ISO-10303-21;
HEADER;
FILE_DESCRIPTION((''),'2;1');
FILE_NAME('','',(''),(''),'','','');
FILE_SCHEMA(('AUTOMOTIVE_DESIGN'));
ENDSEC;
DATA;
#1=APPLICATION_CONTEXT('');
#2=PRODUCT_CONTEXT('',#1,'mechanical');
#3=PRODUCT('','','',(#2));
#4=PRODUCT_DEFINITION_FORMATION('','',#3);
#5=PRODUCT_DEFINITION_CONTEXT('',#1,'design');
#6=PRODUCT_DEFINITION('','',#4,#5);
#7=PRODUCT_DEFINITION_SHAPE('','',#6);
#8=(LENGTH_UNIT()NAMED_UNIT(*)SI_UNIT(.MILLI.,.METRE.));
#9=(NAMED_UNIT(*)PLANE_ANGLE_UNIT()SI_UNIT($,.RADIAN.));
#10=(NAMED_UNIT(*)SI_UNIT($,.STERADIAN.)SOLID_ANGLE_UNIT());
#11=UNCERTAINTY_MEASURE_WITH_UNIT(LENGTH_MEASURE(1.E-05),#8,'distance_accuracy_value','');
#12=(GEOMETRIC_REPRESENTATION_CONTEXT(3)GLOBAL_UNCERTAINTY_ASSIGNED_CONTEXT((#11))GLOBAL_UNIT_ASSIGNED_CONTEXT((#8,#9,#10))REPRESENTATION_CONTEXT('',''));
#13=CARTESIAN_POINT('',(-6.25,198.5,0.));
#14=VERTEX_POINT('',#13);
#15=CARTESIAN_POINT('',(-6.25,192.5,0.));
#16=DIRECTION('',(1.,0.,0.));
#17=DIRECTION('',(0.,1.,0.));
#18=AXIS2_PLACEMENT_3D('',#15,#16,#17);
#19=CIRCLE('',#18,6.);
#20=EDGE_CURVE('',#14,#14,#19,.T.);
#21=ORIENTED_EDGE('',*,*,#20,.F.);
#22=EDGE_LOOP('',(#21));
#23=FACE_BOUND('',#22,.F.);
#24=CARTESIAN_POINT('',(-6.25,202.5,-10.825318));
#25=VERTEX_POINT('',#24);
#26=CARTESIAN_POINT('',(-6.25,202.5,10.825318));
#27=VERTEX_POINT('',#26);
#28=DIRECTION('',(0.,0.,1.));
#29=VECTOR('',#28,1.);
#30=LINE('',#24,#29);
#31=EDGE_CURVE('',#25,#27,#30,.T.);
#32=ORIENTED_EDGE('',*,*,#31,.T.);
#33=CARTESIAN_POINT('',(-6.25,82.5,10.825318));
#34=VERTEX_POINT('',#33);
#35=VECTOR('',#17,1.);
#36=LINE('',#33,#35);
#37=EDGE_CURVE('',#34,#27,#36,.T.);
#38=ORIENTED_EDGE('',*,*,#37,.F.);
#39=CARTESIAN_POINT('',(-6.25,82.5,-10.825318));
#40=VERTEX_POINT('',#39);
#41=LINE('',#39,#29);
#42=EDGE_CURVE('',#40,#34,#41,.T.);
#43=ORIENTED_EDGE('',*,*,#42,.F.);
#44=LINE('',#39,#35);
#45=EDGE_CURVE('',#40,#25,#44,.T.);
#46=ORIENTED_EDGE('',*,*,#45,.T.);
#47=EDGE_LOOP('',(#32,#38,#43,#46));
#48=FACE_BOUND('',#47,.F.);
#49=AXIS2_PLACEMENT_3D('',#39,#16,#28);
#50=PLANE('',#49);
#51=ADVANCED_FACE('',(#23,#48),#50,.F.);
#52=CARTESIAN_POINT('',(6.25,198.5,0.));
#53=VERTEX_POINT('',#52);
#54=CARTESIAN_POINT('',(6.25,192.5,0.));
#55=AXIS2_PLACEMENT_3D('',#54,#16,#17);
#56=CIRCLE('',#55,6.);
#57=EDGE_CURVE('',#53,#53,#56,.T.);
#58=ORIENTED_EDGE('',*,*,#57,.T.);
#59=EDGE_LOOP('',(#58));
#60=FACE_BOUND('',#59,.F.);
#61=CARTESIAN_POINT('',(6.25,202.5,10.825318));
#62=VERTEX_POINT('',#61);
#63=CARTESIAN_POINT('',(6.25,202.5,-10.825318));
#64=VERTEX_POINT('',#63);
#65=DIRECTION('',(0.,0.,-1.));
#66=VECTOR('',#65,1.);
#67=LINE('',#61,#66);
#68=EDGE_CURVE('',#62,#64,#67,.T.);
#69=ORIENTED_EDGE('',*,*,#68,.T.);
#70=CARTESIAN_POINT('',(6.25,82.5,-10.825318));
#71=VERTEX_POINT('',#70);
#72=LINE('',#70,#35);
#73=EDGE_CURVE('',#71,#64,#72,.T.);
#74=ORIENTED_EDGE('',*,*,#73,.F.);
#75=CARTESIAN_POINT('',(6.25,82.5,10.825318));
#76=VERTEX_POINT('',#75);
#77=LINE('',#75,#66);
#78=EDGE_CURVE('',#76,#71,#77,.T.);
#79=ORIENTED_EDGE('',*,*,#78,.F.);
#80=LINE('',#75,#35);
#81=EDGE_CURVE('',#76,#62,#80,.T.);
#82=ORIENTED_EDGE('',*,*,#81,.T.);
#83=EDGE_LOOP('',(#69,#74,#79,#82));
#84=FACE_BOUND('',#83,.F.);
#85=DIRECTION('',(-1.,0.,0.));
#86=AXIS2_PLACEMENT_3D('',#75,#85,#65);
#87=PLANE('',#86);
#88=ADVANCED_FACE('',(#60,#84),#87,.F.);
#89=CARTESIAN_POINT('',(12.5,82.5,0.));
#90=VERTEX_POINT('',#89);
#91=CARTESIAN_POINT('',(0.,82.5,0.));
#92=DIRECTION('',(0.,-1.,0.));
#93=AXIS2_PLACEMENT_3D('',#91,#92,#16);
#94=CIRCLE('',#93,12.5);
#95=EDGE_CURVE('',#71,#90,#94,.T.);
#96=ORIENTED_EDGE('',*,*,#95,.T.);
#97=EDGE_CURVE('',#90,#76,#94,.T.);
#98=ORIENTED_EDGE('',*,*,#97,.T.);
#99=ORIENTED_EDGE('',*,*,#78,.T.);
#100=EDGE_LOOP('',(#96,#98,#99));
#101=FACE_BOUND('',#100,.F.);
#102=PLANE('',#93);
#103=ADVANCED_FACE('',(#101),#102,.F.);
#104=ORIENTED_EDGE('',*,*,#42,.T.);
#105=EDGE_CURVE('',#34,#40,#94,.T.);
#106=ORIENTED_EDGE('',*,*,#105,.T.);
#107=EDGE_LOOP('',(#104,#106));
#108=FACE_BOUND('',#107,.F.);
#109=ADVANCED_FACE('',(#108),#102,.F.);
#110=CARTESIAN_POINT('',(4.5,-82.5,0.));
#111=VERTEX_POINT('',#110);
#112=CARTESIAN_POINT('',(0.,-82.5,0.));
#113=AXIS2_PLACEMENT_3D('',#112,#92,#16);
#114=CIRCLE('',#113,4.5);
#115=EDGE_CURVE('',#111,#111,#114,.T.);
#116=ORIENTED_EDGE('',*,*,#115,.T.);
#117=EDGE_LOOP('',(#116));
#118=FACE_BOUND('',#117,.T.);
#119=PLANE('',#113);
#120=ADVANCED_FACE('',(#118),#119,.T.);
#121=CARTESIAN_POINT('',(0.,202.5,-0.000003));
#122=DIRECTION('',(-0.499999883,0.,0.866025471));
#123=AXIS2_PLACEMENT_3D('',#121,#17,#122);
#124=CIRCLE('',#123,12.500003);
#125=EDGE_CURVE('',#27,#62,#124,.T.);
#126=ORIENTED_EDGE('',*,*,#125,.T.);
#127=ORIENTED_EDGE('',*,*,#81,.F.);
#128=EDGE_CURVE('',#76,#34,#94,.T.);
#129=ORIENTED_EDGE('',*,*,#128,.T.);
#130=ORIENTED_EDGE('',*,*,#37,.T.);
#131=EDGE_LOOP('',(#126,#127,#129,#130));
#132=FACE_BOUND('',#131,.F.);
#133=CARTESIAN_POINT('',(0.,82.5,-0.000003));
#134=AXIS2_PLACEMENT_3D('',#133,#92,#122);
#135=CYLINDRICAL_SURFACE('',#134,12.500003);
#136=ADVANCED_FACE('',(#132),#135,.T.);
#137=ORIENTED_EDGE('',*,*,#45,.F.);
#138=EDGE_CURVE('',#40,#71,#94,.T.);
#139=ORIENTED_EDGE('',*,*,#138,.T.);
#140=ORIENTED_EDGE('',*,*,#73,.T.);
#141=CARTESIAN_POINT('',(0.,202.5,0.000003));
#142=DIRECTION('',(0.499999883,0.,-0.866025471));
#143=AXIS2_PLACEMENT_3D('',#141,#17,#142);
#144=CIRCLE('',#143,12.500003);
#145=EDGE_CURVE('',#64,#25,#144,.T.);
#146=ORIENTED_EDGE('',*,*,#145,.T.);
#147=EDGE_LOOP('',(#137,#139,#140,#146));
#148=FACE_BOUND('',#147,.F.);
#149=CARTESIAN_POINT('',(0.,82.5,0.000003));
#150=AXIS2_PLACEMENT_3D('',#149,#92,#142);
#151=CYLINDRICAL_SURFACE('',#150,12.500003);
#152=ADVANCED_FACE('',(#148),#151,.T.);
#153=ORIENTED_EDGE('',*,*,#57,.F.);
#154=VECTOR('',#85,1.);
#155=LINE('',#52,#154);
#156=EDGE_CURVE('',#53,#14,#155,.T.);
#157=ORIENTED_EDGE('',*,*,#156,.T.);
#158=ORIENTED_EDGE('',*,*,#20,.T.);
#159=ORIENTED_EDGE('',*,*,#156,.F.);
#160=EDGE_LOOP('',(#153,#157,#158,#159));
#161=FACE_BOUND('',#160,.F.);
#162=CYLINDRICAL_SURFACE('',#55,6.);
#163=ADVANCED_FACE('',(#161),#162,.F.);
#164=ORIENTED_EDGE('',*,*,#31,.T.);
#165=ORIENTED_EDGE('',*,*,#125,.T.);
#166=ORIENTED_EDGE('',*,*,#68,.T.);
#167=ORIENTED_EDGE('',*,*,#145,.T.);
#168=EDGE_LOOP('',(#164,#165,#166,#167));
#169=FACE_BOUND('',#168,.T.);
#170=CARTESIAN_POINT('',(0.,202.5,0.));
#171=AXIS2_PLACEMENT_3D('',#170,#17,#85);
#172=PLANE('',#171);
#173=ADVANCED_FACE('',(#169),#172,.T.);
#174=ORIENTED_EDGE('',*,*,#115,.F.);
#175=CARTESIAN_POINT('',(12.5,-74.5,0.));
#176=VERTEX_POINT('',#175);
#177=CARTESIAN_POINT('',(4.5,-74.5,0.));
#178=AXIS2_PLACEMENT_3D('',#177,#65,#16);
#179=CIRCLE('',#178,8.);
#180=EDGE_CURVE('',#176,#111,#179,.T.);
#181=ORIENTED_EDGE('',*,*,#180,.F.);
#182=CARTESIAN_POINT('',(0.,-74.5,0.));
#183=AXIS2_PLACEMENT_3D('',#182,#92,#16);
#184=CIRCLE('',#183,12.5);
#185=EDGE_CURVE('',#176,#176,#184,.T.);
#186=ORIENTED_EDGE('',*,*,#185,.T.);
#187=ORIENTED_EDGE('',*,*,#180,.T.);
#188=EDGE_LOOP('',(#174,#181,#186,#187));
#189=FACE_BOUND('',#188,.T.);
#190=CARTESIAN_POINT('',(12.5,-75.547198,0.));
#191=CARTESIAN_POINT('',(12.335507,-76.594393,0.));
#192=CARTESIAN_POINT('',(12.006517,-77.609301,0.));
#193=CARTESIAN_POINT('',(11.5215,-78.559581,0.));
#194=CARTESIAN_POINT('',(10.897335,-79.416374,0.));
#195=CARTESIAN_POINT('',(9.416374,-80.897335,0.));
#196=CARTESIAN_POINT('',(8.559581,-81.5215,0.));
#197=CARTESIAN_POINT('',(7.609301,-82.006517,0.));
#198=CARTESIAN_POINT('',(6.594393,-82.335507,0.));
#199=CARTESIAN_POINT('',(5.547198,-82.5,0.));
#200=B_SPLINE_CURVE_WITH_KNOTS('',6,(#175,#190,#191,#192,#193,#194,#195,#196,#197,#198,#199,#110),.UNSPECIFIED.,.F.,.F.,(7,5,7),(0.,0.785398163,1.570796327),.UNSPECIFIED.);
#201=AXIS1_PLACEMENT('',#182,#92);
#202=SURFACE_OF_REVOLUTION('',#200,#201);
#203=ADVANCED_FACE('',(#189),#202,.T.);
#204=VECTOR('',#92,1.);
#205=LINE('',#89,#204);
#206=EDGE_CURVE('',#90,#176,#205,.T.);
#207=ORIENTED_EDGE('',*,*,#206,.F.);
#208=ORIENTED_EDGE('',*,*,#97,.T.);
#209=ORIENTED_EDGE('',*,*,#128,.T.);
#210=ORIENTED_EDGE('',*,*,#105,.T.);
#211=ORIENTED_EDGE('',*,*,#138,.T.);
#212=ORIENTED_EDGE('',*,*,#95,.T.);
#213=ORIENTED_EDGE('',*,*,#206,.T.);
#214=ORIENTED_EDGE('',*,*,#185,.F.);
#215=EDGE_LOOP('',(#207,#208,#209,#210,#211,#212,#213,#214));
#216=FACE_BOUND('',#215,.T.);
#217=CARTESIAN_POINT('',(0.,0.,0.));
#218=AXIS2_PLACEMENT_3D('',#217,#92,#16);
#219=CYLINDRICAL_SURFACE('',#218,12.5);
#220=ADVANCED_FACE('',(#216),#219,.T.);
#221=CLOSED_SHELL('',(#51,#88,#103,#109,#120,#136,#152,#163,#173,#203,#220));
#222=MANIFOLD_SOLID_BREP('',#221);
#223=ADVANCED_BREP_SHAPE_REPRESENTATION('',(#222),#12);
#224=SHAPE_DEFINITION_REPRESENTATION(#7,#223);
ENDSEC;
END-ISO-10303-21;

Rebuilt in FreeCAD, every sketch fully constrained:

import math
import FreeCAD as App
import Part
import Sketcher

V = App.Vector


def edges_at(feature, points):
    """Names of the edges that pass closest to the given points."""
    edges = feature.Shape.Edges
    near = lambda p: min(range(len(edges)), key=lambda i: edges[i].distToShape(Part.Vertex(*p))[0])
    return sorted({f"Edge{near(p) + 1}" for p in points})

doc = App.newDocument("Part")
body = doc.addObject("PartDesign::Body", "Body")

sketch1 = body.newObject("Sketcher::SketchObject", "Sketch")
sketch1.AttachmentSupport = (doc.getObject("XZ_Plane"), [""])
sketch1.MapMode = "FlatFace"
sketch1.addGeometry(Part.Circle(V(0, 0, 0), V(0, 0, 1), 12), False)
sketch1.addConstraint([
    Sketcher.Constraint("Coincident", 0, 3, -1, 1),
    Sketcher.Constraint("Diameter", 0, 25.0),
])
pad1 = body.newObject("PartDesign::Pad", "Pad")
pad1.Profile = sketch1
pad1.Length = 165
pad1.Midplane = True

sketch2 = body.newObject("Sketcher::SketchObject", "Sketch001")
sketch2.AttachmentSupport = (doc.getObject("XZ_Plane"), [""])
sketch2.MapMode = "FlatFace"
sketch2.AttachmentOffset = App.Placement(V(0, 0, -82.5), App.Rotation())
sketch2.addGeometry([
    Part.LineSegment(V(-6, -11, 0), V(-6, 11, 0)),
    Part.ArcOfCircle(Part.Circle(V(0, 0, 0), V(0, 0, 1), 13), math.radians(60), math.radians(120)),
    Part.LineSegment(V(6, 11, 0), V(6, -11, 0)),
    Part.ArcOfCircle(Part.Circle(V(0, 0, 0), V(0, 0, 1), 13), math.radians(-120), math.radians(-60)),
], False)
sketch2.addConstraint([
    Sketcher.Constraint("Coincident", 0, 2, 1, 2),
    Sketcher.Constraint("Coincident", 1, 1, 2, 1),
    Sketcher.Constraint("Coincident", 2, 2, 3, 2),
    Sketcher.Constraint("Coincident", 3, 1, 0, 1),
    Sketcher.Constraint("Vertical", 0),
    Sketcher.Constraint("Vertical", 2),
    Sketcher.Constraint("Coincident", 1, 3, -1, 1),
    Sketcher.Constraint("Coincident", 3, 3, -1, 1),
    Sketcher.Constraint("Equal", 1, 3),
    Sketcher.Constraint("Horizontal", 0, 2, 1, 1),
    Sketcher.Constraint("DistanceX", 0, 2, 1, 1, 12.5),
    Sketcher.Constraint("Radius", 1, 12.500003),
])
pad2 = body.newObject("PartDesign::Pad", "Pad001")
pad2.Profile = sketch2
pad2.Length = 120
pad2.Reversed = True
doc.recompute()

fillet = body.newObject("PartDesign::Fillet", "Fillet")
fillet.Base = (pad2, edges_at(pad2, [(-12.5, -82.5, 0)]))
fillet.Radius = 8

sketch3 = body.newObject("Sketcher::SketchObject", "Sketch002")
sketch3.AttachmentSupport = (doc.getObject("YZ_Plane"), [""])
sketch3.MapMode = "FlatFace"
sketch3.AttachmentOffset = App.Placement(V(0, 0, 6.25), App.Rotation())
sketch3.addGeometry(Part.Circle(V(192, 0, 0), V(0, 0, 1), 6), False)
sketch3.addConstraint([
    Sketcher.Constraint("PointOnObject", 0, 3, -1),
    Sketcher.Constraint("Diameter", 0, 12.0),
    Sketcher.Constraint("DistanceX", -1, 1, 0, 3, 192.5),
])
pocket1 = body.newObject("PartDesign::Pocket", "Pocket")
pocket1.Profile = sketch3
pocket1.Length = 25

doc.recompute()
